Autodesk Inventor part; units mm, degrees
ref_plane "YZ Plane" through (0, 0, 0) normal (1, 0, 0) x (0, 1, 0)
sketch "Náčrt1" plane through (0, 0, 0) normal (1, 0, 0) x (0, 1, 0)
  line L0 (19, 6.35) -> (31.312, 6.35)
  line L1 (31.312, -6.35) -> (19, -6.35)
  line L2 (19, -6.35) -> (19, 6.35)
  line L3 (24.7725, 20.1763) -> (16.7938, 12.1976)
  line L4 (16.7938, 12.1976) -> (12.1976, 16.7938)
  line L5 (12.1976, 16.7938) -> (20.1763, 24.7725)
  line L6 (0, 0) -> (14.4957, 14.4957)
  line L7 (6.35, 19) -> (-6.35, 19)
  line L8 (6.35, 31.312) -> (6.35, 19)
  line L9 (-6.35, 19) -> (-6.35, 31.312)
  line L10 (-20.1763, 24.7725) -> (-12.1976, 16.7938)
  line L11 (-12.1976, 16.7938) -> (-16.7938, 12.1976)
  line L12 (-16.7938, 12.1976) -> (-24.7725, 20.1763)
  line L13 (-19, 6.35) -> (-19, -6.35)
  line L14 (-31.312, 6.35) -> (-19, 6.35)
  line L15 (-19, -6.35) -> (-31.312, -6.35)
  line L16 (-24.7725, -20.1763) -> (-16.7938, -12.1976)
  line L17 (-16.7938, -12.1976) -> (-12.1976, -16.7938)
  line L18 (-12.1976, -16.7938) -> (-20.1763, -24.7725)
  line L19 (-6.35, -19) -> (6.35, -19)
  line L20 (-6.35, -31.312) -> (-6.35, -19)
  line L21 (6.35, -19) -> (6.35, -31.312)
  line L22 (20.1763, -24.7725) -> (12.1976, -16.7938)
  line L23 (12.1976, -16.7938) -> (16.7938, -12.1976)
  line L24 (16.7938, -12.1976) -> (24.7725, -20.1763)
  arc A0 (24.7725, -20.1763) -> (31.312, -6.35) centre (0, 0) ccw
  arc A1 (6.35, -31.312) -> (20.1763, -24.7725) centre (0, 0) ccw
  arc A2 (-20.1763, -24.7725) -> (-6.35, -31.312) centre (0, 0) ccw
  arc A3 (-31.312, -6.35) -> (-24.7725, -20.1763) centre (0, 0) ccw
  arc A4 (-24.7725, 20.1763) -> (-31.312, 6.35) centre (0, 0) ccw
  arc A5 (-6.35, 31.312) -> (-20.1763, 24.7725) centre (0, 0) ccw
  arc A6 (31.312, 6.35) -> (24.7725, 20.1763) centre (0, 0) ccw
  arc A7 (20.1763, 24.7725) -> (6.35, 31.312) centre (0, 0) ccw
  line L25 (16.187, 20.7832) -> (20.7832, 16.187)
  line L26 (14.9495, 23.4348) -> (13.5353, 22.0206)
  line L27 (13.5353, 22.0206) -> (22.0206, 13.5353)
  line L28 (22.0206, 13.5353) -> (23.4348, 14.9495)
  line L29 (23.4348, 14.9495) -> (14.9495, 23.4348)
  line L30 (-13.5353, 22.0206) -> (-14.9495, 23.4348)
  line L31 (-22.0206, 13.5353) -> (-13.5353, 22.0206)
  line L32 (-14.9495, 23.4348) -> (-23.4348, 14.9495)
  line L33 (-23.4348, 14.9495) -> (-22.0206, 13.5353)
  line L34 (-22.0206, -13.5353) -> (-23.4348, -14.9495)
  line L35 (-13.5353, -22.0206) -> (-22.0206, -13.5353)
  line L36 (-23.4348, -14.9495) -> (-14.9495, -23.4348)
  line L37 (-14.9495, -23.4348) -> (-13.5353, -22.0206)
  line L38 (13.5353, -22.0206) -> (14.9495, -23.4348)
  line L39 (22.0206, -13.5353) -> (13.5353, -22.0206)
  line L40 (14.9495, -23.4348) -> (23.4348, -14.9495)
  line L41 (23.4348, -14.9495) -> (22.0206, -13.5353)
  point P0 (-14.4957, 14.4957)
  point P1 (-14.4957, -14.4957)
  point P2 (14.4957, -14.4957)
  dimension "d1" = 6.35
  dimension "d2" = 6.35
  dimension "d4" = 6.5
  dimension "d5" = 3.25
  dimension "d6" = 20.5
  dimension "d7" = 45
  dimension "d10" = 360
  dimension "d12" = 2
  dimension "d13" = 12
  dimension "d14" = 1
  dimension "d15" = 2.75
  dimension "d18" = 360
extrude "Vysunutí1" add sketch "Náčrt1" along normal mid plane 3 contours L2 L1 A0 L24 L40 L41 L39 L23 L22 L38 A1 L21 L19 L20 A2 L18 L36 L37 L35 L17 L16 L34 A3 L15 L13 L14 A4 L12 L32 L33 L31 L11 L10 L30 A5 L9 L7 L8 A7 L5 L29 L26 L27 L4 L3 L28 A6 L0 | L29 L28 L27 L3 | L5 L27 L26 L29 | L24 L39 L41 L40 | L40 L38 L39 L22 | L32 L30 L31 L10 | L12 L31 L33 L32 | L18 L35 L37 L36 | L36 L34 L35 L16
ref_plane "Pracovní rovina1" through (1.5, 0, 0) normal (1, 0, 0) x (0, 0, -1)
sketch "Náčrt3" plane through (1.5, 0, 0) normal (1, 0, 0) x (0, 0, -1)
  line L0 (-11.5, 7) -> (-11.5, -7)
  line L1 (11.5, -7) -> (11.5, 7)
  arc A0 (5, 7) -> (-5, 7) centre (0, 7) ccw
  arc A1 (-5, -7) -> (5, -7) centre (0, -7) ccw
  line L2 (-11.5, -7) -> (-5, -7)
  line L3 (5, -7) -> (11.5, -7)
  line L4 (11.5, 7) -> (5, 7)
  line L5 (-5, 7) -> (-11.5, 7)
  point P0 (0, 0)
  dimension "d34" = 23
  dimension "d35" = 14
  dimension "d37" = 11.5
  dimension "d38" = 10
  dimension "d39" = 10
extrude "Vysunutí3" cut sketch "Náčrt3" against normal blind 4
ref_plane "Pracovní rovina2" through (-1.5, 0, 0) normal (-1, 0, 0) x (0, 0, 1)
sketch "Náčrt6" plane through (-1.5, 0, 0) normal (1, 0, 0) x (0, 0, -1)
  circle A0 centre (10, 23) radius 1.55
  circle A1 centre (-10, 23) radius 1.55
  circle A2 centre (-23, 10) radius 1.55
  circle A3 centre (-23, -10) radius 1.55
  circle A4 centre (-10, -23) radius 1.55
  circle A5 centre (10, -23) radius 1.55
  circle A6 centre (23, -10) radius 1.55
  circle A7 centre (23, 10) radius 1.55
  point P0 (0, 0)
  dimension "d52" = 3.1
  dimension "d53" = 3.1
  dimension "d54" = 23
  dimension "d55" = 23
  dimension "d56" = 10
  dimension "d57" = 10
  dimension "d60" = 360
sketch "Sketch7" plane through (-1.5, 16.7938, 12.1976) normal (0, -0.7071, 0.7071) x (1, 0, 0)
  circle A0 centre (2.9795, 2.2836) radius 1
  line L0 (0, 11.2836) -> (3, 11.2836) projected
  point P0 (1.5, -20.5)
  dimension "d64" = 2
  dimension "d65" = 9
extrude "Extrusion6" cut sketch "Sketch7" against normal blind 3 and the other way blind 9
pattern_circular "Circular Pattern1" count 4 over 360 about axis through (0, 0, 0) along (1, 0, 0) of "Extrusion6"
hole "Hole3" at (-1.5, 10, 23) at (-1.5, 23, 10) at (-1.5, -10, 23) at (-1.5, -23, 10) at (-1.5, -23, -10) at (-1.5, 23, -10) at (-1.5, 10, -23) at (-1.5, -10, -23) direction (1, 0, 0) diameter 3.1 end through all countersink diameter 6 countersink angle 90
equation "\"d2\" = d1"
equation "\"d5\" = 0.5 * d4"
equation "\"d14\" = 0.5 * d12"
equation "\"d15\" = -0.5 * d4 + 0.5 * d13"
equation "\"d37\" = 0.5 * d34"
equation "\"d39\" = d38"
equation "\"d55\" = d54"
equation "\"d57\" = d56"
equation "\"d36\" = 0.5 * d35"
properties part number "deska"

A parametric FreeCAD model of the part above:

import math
import FreeCAD as App
import Part
import Sketcher
from FreeCAD import Vector

doc = App.newDocument("Part")
body = doc.addObject("PartDesign::Body", "Body")

# Sketch on YZ plane
sketch1 = body.newObject("Sketcher::SketchObject", "Sketch")
sketch1.AttachmentSupport = (doc.getObject("YZ_Plane"), [""])
sketch1.MapMode = "FlatFace"
sketch1.addGeometry([
    Part.LineSegment(Vector(19, -6.35, 0), Vector(19, 6.35, 0)),  # 0
    Part.LineSegment(Vector(19, 6.35, 0), Vector(31.312, 6.35, 0)),  # 1
    Part.ArcOfCircle(Part.Circle(Vector(0.001031, 0.000343, 0), Vector(0, 0, 1), 31.948317), math.radians(11.463743), math.radians(39.162254)),  # 2
    Part.LineSegment(Vector(24.7725, 20.1763, 0), Vector(16.7938, 12.1976, 0)),  # 3
    Part.LineSegment(Vector(16.7938, 12.1976, 0), Vector(12.1976, 16.7938, 0)),  # 4
    Part.LineSegment(Vector(12.1976, 16.7938, 0), Vector(20.1763, 24.7725, 0)),  # 5
    Part.ArcOfCircle(Part.Circle(Vector(-0.000579, -0.000919, 0), Vector(0, 0, 1), 31.950411), math.radians(50.838672), math.radians(78.535331)),  # 6
    Part.LineSegment(Vector(6.35, 31.312, 0), Vector(6.35, 19, 0)),  # 7
    Part.LineSegment(Vector(6.35, 19, 0), Vector(-6.35, 19, 0)),  # 8
    Part.LineSegment(Vector(-6.35, 19, 0), Vector(-6.35, 31.312, 0)),  # 9
    Part.ArcOfCircle(Part.Circle(Vector(-0.000343, 0.001031, 0), Vector(0, 0, 1), 31.948317), math.radians(101.463743), math.radians(129.162254)),  # 10
    Part.LineSegment(Vector(-20.1763, 24.7725, 0), Vector(-12.1976, 16.7938, 0)),  # 11
    Part.LineSegment(Vector(-12.1976, 16.7938, 0), Vector(-16.7938, 12.1976, 0)),  # 12
    Part.LineSegment(Vector(-16.7938, 12.1976, 0), Vector(-24.7725, 20.1763, 0)),  # 13
    Part.ArcOfCircle(Part.Circle(Vector(0.000919, -0.000579, 0), Vector(0, 0, 1), 31.950411), math.radians(140.838672), math.radians(168.535331)),  # 14
    Part.LineSegment(Vector(-31.312, 6.35, 0), Vector(-19, 6.35, 0)),  # 15
    Part.LineSegment(Vector(-19, 6.35, 0), Vector(-19, -6.35, 0)),  # 16
    Part.LineSegment(Vector(-19, -6.35, 0), Vector(-31.312, -6.35, 0)),  # 17
    Part.ArcOfCircle(Part.Circle(Vector(-0.001031, -0.000343, 0), Vector(0, 0, 1), 31.948317), math.radians(-168.536257), math.radians(-140.837746)),  # 18
    Part.LineSegment(Vector(-24.7725, -20.1763, 0), Vector(-16.7938, -12.1976, 0)),  # 19
    Part.LineSegment(Vector(-16.7938, -12.1976, 0), Vector(-12.1976, -16.7938, 0)),  # 20
    Part.LineSegment(Vector(-12.1976, -16.7938, 0), Vector(-20.1763, -24.7725, 0)),  # 21
    Part.ArcOfCircle(Part.Circle(Vector(0.000579, 0.000919, 0), Vector(0, 0, 1), 31.950411), math.radians(-129.161328), math.radians(-101.464669)),  # 22
    Part.LineSegment(Vector(-6.35, -31.312, 0), Vector(-6.35, -19, 0)),  # 23
    Part.LineSegment(Vector(-6.35, -19, 0), Vector(6.35, -19, 0)),  # 24
    Part.LineSegment(Vector(6.35, -19, 0), Vector(6.35, -31.312, 0)),  # 25
    Part.ArcOfCircle(Part.Circle(Vector(0.000343, -0.001031, 0), Vector(0, 0, 1), 31.948317), math.radians(-78.536257), math.radians(-50.837746)),  # 26
    Part.LineSegment(Vector(20.1763, -24.7725, 0), Vector(12.1976, -16.7938, 0)),  # 27
    Part.LineSegment(Vector(12.1976, -16.7938, 0), Vector(16.7938, -12.1976, 0)),  # 28
    Part.LineSegment(Vector(16.7938, -12.1976, 0), Vector(24.7725, -20.1763, 0)),  # 29
    Part.ArcOfCircle(Part.Circle(Vector(-0.000919, 0.000579, 0), Vector(0, 0, 1), 31.950411), math.radians(-39.161328), math.radians(-11.464669)),  # 30
    Part.LineSegment(Vector(31.312, -6.35, 0), Vector(19, -6.35, 0)),  # 31
], False)
sketch1.addConstraint([
    Sketcher.Constraint("Coincident", 0, 2, 1, 1),
    Sketcher.Constraint("Coincident", 1, 2, 2, 1),
    Sketcher.Constraint("Coincident", 2, 2, 3, 1),
    Sketcher.Constraint("Coincident", 3, 2, 4, 1),
    Sketcher.Constraint("Coincident", 4, 2, 5, 1),
    Sketcher.Constraint("Coincident", 5, 2, 6, 1),
    Sketcher.Constraint("Coincident", 6, 2, 7, 1),
    Sketcher.Constraint("Coincident", 7, 2, 8, 1),
    Sketcher.Constraint("Coincident", 8, 2, 9, 1),
    Sketcher.Constraint("Coincident", 9, 2, 10, 1),
    Sketcher.Constraint("Coincident", 10, 2, 11, 1),
    Sketcher.Constraint("Coincident", 11, 2, 12, 1),
    Sketcher.Constraint("Coincident", 12, 2, 13, 1),
    Sketcher.Constraint("Coincident", 13, 2, 14, 1),
    Sketcher.Constraint("Coincident", 14, 2, 15, 1),
    Sketcher.Constraint("Coincident", 15, 2, 16, 1),
    Sketcher.Constraint("Coincident", 16, 2, 17, 1),
    Sketcher.Constraint("Coincident", 17, 2, 18, 1),
    Sketcher.Constraint("Coincident", 18, 2, 19, 1),
    Sketcher.Constraint("Coincident", 19, 2, 20, 1),
    Sketcher.Constraint("Coincident", 20, 2, 21, 1),
    Sketcher.Constraint("Coincident", 21, 2, 22, 1),
    Sketcher.Constraint("Coincident", 22, 2, 23, 1),
    Sketcher.Constraint("Coincident", 23, 2, 24, 1),
    Sketcher.Constraint("Coincident", 24, 2, 25, 1),
    Sketcher.Constraint("Coincident", 25, 2, 26, 1),
    Sketcher.Constraint("Coincident", 26, 2, 27, 1),
    Sketcher.Constraint("Coincident", 27, 2, 28, 1),
    Sketcher.Constraint("Coincident", 28, 2, 29, 1),
    Sketcher.Constraint("Coincident", 29, 2, 30, 1),
    Sketcher.Constraint("Coincident", 30, 2, 31, 1),
    Sketcher.Constraint("Coincident", 31, 2, 0, 1),
    Sketcher.Constraint("Vertical", 0),
    Sketcher.Constraint("Horizontal", 1),
    Sketcher.Constraint("Vertical", 7),
    Sketcher.Constraint("Horizontal", 8),
    Sketcher.Constraint("Vertical", 9),
    Sketcher.Constraint("Horizontal", 15),
    Sketcher.Constraint("Vertical", 16),
    Sketcher.Constraint("Horizontal", 17),
    Sketcher.Constraint("Vertical", 23),
    Sketcher.Constraint("Horizontal", 24),
    Sketcher.Constraint("Vertical", 25),
    Sketcher.Constraint("Horizontal", 31),
    Sketcher.Constraint("Equal", 2, 10),
    Sketcher.Constraint("Equal", 6, 14),
    Sketcher.Constraint("Equal", 10, 18),
    Sketcher.Constraint("Equal", 14, 22),
    Sketcher.Constraint("Equal", 18, 26),
    Sketcher.Constraint("Equal", 22, 30),
    Sketcher.Constraint("Symmetric", 2, 3, 18, 3, -1, 1),
    Sketcher.Constraint("Symmetric", 6, 3, 22, 3, -1, 1),
    Sketcher.Constraint("Symmetric", 10, 3, 26, 3, -1, 1),
    Sketcher.Constraint("Symmetric", 14, 3, 30, 3, -1, 1),
    Sketcher.Constraint("Symmetric", 0, 2, 16, 2, -1, 1),
    Sketcher.Constraint("Symmetric", 3, 2, 19, 2, -1, 1),
    Sketcher.Constraint("Symmetric", 4, 2, 20, 2, -1, 1),
    Sketcher.Constraint("Symmetric", 7, 2, 23, 2, -1, 1),
    Sketcher.Constraint("Symmetric", 11, 2, 27, 2, -1, 1),
    Sketcher.Constraint("Symmetric", 12, 2, 28, 2, -1, 1),
    Sketcher.Constraint("Symmetric", 14, 3, 18, 3, -2),
    Sketcher.Constraint("Symmetric", 10, 3, 22, 3, -2),
    Sketcher.Constraint("Symmetric", 6, 2, 9, 2, -2),
    Sketcher.Constraint("Symmetric", 5, 2, 10, 2, -2),
    Sketcher.Constraint("Symmetric", 4, 2, 11, 2, -2),
    Sketcher.Constraint("Symmetric", 3, 2, 12, 2, -2),
    Sketcher.Constraint("Symmetric", 2, 2, 13, 2, -2),
    Sketcher.Constraint("Symmetric", 1, 2, 14, 2, -2),
    Sketcher.Constraint("Perpendicular", 3, 4),
    Sketcher.Constraint("Perpendicular", 4, 5),
    Sketcher.Constraint("Perpendicular", 5, 11),
    Sketcher.Constraint("Perpendicular", 13, 19),
    Sketcher.Constraint("Perpendicular", 20, 21),
    Sketcher.Constraint("Perpendicular", 21, 27),
    Sketcher.Constraint("Perpendicular", 28, 29),
    Sketcher.Constraint("Horizontal", 22, 2, 25, 2),
    Sketcher.Constraint("Horizontal", 17, 2, 30, 2),
    Sketcher.Constraint("Equal", 24, 0),
    Sketcher.Constraint("Equal", 31, 7),
    Sketcher.Constraint("Equal", 3, 5),
    Sketcher.Constraint("Distance", 4, 6.5),
    Sketcher.Constraint("DistanceY", -1, 1, 0, 2, 6.35),
    Sketcher.Constraint("DistanceX", -1, 1, 0, 2, 19.0),
    Sketcher.Constraint("Radius", 2, 31.9483),
    Sketcher.Constraint("Radius", 6, 31.9504),
    Sketcher.Constraint("DistanceX", 4, 2, 2, 2, 12.575),
])
pad1 = body.newObject("PartDesign::Pad", "Pad")
pad1.Profile = sketch1
pad1.Length = 3
pad1.Midplane = True

# Sketch on YZ plane
sketch2 = body.newObject("Sketcher::SketchObject", "Sketch001")
sketch2.AttachmentSupport = (doc.getObject("YZ_Plane"), [""])
sketch2.MapMode = "FlatFace"
sketch2.AttachmentOffset = App.Placement(Vector(0, 0, 1.5), App.Rotation())
sketch2.addGeometry([
    Part.LineSegment(Vector(7, 5, 0), Vector(7, 11.5, 0)),  # 0
    Part.LineSegment(Vector(7, 11.5, 0), Vector(-7, 11.5, 0)),  # 1
    Part.LineSegment(Vector(-7, 11.5, 0), Vector(-7, 5, 0)),  # 2
    Part.ArcOfCircle(Part.Circle(Vector(-7, 0, 0), Vector(0, 0, 1), 5), math.radians(90), math.radians(270)),  # 3
    Part.LineSegment(Vector(-7, -5, 0), Vector(-7, -11.5, 0)),  # 4
    Part.LineSegment(Vector(-7, -11.5, 0), Vector(7, -11.5, 0)),  # 5
    Part.LineSegment(Vector(7, -11.5, 0), Vector(7, -5, 0)),  # 6
    Part.ArcOfCircle(Part.Circle(Vector(7, 0, 0), Vector(0, 0, 1), 5), math.radians(-90), math.radians(90)),  # 7
], False)
sketch2.addConstraint([
    Sketcher.Constraint("Coincident", 0, 2, 1, 1),
    Sketcher.Constraint("Coincident", 1, 2, 2, 1),
    Sketcher.Constraint("Coincident", 2, 2, 3, 1),
    Sketcher.Constraint("Coincident", 3, 2, 4, 1),
    Sketcher.Constraint("Coincident", 4, 2, 5, 1),
    Sketcher.Constraint("Coincident", 5, 2, 6, 1),
    Sketcher.Constraint("Coincident", 6, 2, 7, 1),
    Sketcher.Constraint("Coincident", 7, 2, 0, 1),
    Sketcher.Constraint("Vertical", 0),
    Sketcher.Constraint("Horizontal", 1),
    Sketcher.Constraint("Vertical", 2),
    Sketcher.Constraint("Vertical", 4),
    Sketcher.Constraint("Horizontal", 5),
    Sketcher.Constraint("Vertical", 6),
    Sketcher.Constraint("Equal", 3, 7),
    Sketcher.Constraint("Symmetric", 3, 3, 7, 3, -1, 1),
    Sketcher.Constraint("Symmetric", 0, 2, 4, 2, -1, 1),
    Sketcher.Constraint("Symmetric", 3, 2, 6, 2, -2),
    Sketcher.Constraint("Vertical", 7, 3, 0, 2),
    Sketcher.Constraint("Vertical", 3, 3, 1, 2),
    Sketcher.Constraint("Radius", 3, 5.0),
    Sketcher.Constraint("DistanceX", 1, 2, 1, 1, 14.0),
    Sketcher.Constraint("DistanceY", 4, 2, 1, 2, 23.0),
])
pocket1 = body.newObject("PartDesign::Pocket", "Pocket")
pocket1.Profile = sketch2
pocket1.Length = 4

# Sketch on an angled plane
sketch3 = body.newObject("Sketcher::SketchObject", "Sketch002")
sketch3.Placement = App.Placement(Vector(-1.5, 16.7938, 12.1976), App.Rotation(Vector(1, 0, 0), Vector(0, 0.707106781, 0.707106781), Vector(0, -0.707106781, 0.707106781), "ZXY"))
sketch3.addGeometry(Part.Circle(Vector(2.9795, 2.2836, 0), Vector(0, 0, 1), 1), False)
sketch3.addConstraint([
    Sketcher.Constraint("Diameter", 0, 2.0),
    Sketcher.Constraint("DistanceX", -1, 1, 0, 3, 2.9795),
    Sketcher.Constraint("DistanceY", -1, 1, 0, 3, 2.2836),
])
pocket2 = body.newObject("PartDesign::Pocket", "Pocket001")
pocket2.Profile = sketch3
pocket2.Type = "TwoLengths"
pocket2.Length = 3
pocket2.Length2 = 9
doc.recompute()

polarpattern = body.newObject("PartDesign::PolarPattern", "PolarPattern")
polarpattern.Originals = [pocket2]
polarpattern.Axis = (doc.getObject("X_Axis"), [""])
polarpattern.Angle = 360
polarpattern.Occurrences = 4
body.Tip = polarpattern

# Sketch on YZ plane
sketch4 = body.newObject("Sketcher::SketchObject", "Sketch003")
sketch4.AttachmentSupport = (doc.getObject("YZ_Plane"), [""])
sketch4.MapMode = "FlatFace"
sketch4.AttachmentOffset = App.Placement(Vector(0, 0, -1.5), App.Rotation())
sketch4.addGeometry([
    Part.Circle(Vector(10, 23, 0), Vector(0, 0, 1), 1.55),  # 0
    Part.Circle(Vector(23, 10, 0), Vector(0, 0, 1), 1.55),  # 1
    Part.Circle(Vector(-10, 23, 0), Vector(0, 0, 1), 1.55),  # 2
    Part.Circle(Vector(-23, 10, 0), Vector(0, 0, 1), 1.55),  # 3
    Part.Circle(Vector(-23, -10, 0), Vector(0, 0, 1), 1.55),  # 4
    Part.Circle(Vector(23, -10, 0), Vector(0, 0, 1), 1.55),  # 5
    Part.Circle(Vector(10, -23, 0), Vector(0, 0, 1), 1.55),  # 6
    Part.Circle(Vector(-10, -23, 0), Vector(0, 0, 1), 1.55),  # 7
], False)
sketch4.addConstraint([
    Sketcher.Constraint("Equal", 0, 1),
    Sketcher.Constraint("Equal", 1, 2),
    Sketcher.Constraint("Equal", 2, 3),
    Sketcher.Constraint("Equal", 3, 4),
    Sketcher.Constraint("Equal", 4, 5),
    Sketcher.Constraint("Equal", 5, 6),
    Sketcher.Constraint("Equal", 6, 7),
    Sketcher.Constraint("Symmetric", 1, 3, 4, 3, -1, 1),
    Sketcher.Constraint("Symmetric", 3, 3, 5, 3, -1, 1),
    Sketcher.Constraint("Symmetric", 2, 3, 6, 3, -1, 1),
    Sketcher.Constraint("Symmetric", 0, 3, 7, 3, -1, 1),
    Sketcher.Constraint("Symmetric", 0, 3, 2, 3, -2),
    Sketcher.Constraint("Symmetric", 1, 3, 3, 3, -2),
    Sketcher.Constraint("Diameter", 0, 3.1),
    Sketcher.Constraint("DistanceX", -1, 1, 0, 3, 10.0),
    Sketcher.Constraint("DistanceY", -1, 1, 0, 3, 23.0),
    Sketcher.Constraint("DistanceX", -1, 1, 1, 3, 23.0),
    Sketcher.Constraint("DistanceY", -1, 1, 1, 3, 10.0),
])
doc.recompute()
hole = body.newObject("PartDesign::Hole", "Hole")
hole.Profile = sketch4
hole.ThreadType = "None"
hole.Diameter = 3.1
hole.DepthType = "ThroughAll"
hole.HoleCutType = "Countersink"
hole.HoleCutDiameter = 6
hole.HoleCutCountersinkAngle = 90
hole.Reversed = True

doc.recompute()
